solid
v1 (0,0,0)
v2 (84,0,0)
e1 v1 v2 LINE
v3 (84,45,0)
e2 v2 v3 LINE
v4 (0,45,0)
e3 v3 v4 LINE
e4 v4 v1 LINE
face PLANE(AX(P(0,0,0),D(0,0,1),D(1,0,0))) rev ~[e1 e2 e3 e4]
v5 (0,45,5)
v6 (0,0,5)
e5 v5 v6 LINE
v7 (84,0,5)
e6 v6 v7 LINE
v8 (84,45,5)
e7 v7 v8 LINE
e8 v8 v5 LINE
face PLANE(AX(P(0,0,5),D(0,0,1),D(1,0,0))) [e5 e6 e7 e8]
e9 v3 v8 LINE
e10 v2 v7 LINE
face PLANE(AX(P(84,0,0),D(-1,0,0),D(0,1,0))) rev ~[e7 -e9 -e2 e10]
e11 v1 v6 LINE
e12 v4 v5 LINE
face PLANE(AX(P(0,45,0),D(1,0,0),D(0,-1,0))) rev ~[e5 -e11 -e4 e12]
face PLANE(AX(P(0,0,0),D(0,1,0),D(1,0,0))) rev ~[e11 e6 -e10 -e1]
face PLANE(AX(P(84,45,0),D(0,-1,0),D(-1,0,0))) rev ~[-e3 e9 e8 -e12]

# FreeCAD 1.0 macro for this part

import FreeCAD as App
import Part
import Sketcher

V = App.Vector


def add_polygon(sketch, points):
    """Adds a closed chain of lines whose ends are joined by coincident constraints."""
    first, n = sketch.GeometryCount, len(points)
    for a, b in zip(points, points[1:] + points[:1]):
        sketch.addGeometry(Part.LineSegment(App.Vector(*a, 0), App.Vector(*b, 0)), False)
    for i in range(n):
        sketch.addConstraint(Sketcher.Constraint("Coincident", first + i, 2, first + (i + 1) % n, 1))

doc = App.newDocument("Part")
body = doc.addObject("PartDesign::Body", "Body")

# Sketch on XY plane
sketch1 = doc.addObject("Sketcher::SketchObject", "Sketch")
body.addObject(sketch1)
sketch1.AttachmentSupport = (doc.XY_Plane, [""])
sketch1.MapMode = "FlatFace"
add_polygon(sketch1, [(0, 45), (0, 0), (84, 0), (84, 45)])  # lines 0-3
sketch1.addConstraint([
    Sketcher.Constraint("Vertical", 0),
    Sketcher.Constraint("Horizontal", 1),
    Sketcher.Constraint("Vertical", 2),
    Sketcher.Constraint("Horizontal", 3),
    Sketcher.Constraint("Coincident", 0, 2, -1, 1),
    Sketcher.Constraint("DistanceX", 1, 1, 1, 2, 84.0),
    Sketcher.Constraint("DistanceY", 0, 2, 0, 1, 45.0),
])
pad1 = doc.addObject("PartDesign::Pad", "Pad")
body.addObject(pad1)
pad1.Profile = sketch1
pad1.Length = 5

doc.recompute()
